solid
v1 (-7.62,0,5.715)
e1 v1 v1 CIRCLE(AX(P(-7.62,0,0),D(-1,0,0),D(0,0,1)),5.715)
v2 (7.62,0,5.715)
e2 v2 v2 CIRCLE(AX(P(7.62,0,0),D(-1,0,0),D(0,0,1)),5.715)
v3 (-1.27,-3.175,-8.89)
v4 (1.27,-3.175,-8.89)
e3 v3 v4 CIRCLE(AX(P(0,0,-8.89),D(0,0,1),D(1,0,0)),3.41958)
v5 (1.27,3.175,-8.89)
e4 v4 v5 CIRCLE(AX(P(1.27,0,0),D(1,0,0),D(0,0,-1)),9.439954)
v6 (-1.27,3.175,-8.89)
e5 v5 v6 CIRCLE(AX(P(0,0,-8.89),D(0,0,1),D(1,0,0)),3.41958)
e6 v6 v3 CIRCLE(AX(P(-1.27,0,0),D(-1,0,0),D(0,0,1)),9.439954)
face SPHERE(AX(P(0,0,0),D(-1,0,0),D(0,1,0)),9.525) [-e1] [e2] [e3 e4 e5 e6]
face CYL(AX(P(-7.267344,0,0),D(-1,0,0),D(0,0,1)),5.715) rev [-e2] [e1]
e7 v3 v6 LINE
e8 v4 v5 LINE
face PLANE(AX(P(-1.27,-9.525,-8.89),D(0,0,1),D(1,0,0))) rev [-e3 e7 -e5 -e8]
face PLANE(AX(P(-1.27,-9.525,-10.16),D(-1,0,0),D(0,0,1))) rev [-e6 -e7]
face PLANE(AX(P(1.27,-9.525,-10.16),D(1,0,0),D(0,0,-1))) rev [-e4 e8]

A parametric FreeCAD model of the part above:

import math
import FreeCAD as App
import Part
import Sketcher
from FreeCAD import Vector
Q = App.Units.Quantity


def add_polygon(sketch, points):
    """Adds a closed chain of lines whose ends are joined by coincident constraints."""
    first, n = sketch.GeometryCount, len(points)
    for a, b in zip(points, points[1:] + points[:1]):
        sketch.addGeometry(Part.LineSegment(App.Vector(*a, 0), App.Vector(*b, 0)), False)
    for i in range(n):
        sketch.addConstraint(Sketcher.Constraint("Coincident", first + i, 2, first + (i + 1) % n, 1))

doc = App.newDocument("Part")
body = doc.addObject("PartDesign::Body", "Body")

# Sketch on XY plane
sketch1 = body.newObject("Sketcher::SketchObject", "Sketch")
sketch1.AttachmentSupport = (doc.getObject("XY_Plane"), [""])
sketch1.MapMode = "FlatFace"
sketch1.addGeometry([
    Part.LineSegment(Vector(-8, 6, 0), Vector(8, 6, 0)),
    Part.ArcOfCircle(Part.Circle(Vector(0, 0, 0), Vector(0, 0, 1), 10), math.radians(37), math.radians(143)),
], False)
sketch1.addConstraint([
    Sketcher.Constraint("Coincident", 0, 1, 1, 2),
    Sketcher.Constraint("Coincident", 1, 1, 0, 2),
    Sketcher.Constraint("Horizontal", 0),
    Sketcher.Constraint("Coincident", 1, 3, -1, 1),
    Sketcher.Constraint("DistanceX", 0, 1, 0, 2, Q("0.6 in")),
    Sketcher.Constraint("Radius", 1, Q("0.375 in")),
])
revolution = body.newObject("PartDesign::Revolution", "Revolution")
revolution.Profile = sketch1
revolution.ReferenceAxis = (sketch1, ["H_Axis"])
revolution.Angle = 360

# Sketch on XZ plane
sketch2 = body.newObject("Sketcher::SketchObject", "Sketch001")
sketch2.AttachmentSupport = (doc.getObject("XZ_Plane"), [""])
sketch2.MapMode = "FlatFace"
add_polygon(sketch2, [(-1.3, -10.2), (-1.3, -8.9), (1.3, -8.9), (1.3, -10.2)])  # lines 0-3
sketch2.addConstraint([
    Sketcher.Constraint("Vertical", 0),
    Sketcher.Constraint("Horizontal", 1),
    Sketcher.Constraint("Vertical", 2),
    Sketcher.Constraint("Horizontal", 3),
    Sketcher.Constraint("DistanceX", 1, 1, 1, 2, Q("0.1 in")),
    Sketcher.Constraint("DistanceY", 0, 1, 0, 2, Q("0.05 in")),
    Sketcher.Constraint("DistanceY", 2, 2, -1, 1, Q("0.4 in")),
    Sketcher.Constraint("DistanceX", 0, 2, -1, 1, Q("0.05 in")),
])
pocket1 = body.newObject("PartDesign::Pocket", "Pocket")
pocket1.Profile = sketch2
pocket1.Type = "ThroughAll"
pocket1.Midplane = True

doc.recompute()
